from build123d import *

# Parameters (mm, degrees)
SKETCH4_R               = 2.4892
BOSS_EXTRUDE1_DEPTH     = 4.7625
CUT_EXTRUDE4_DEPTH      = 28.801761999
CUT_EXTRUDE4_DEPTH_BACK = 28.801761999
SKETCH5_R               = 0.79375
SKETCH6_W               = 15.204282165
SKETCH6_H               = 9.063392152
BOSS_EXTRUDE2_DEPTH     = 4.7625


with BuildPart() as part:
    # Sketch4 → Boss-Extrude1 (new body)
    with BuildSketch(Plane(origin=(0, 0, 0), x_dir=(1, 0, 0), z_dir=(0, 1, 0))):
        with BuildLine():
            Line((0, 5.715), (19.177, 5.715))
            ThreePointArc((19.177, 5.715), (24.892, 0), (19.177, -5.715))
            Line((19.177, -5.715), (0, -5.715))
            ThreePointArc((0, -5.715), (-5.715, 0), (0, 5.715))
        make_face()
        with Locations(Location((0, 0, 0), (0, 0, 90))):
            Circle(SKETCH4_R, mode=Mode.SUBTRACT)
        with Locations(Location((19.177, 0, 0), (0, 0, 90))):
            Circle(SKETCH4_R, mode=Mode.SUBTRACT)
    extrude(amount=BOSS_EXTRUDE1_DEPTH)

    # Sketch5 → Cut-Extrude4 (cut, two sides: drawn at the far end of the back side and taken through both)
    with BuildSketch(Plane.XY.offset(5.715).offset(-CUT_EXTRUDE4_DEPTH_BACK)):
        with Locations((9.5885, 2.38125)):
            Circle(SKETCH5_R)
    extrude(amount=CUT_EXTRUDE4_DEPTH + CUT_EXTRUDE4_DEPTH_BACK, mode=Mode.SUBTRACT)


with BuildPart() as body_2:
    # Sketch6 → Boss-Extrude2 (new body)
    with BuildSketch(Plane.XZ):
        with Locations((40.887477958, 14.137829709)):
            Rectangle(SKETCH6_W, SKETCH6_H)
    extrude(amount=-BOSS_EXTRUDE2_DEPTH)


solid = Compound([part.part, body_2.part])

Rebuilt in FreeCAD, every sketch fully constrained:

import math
import FreeCAD as App
import Part
import Sketcher
from FreeCAD import Vector
Q = App.Units.Quantity


def add_polygon(sketch, points):
    """Adds a closed chain of lines whose ends are joined by coincident constraints."""
    first, n = sketch.GeometryCount, len(points)
    for a, b in zip(points, points[1:] + points[:1]):
        sketch.addGeometry(Part.LineSegment(App.Vector(*a, 0), App.Vector(*b, 0)), False)
    for i in range(n):
        sketch.addConstraint(Sketcher.Constraint("Coincident", first + i, 2, first + (i + 1) % n, 1))

doc = App.newDocument("Part")
body = doc.addObject("PartDesign::Body", "Body")

# Sketch on XZ plane
sketch1 = doc.addObject("Sketcher::SketchObject", "Sketch")
body.addObject(sketch1)
sketch1.AttachmentSupport = (doc.XZ_Plane, [""])
sketch1.MapMode = "FlatFace"
sketch1.addGeometry([
    Part.LineSegment(Vector(19.2, -5.7, 0), Vector(0, -5.7, 0)),  # 0
    Part.ArcOfCircle(Part.Circle(Vector(0, 0, 0), Vector(0, 0, 1), 5.7), math.radians(90), math.radians(270)),  # 1
    Part.LineSegment(Vector(0, 5.7, 0), Vector(19.2, 5.7, 0)),  # 2
    Part.ArcOfCircle(Part.Circle(Vector(19.2, 0, 0), Vector(0, 0, 1), 5.7), math.radians(-90), math.radians(90)),  # 3
    Part.Circle(Vector(19.2, 0, 0), Vector(0, 0, 1), 2.5),  # 4
    Part.Circle(Vector(0, 0, 0), Vector(0, 0, 1), 2.5),  # 5
], False)
sketch1.addConstraint([
    Sketcher.Constraint("Tangent", 0, 2, 1, 2),
    Sketcher.Constraint("Tangent", 1, 1, 2, 1),
    Sketcher.Constraint("Tangent", 2, 2, 3, 2),
    Sketcher.Constraint("Tangent", 3, 1, 0, 1),
    Sketcher.Constraint("Horizontal", 0),
    Sketcher.Constraint("Horizontal", 2),
    Sketcher.Constraint("Coincident", 1, 3, -1, 1),
    Sketcher.Constraint("Coincident", 5, 3, -1, 1),
    Sketcher.Constraint("Coincident", 4, 3, 3, 3),
    Sketcher.Constraint("Equal", 4, 5),
    Sketcher.Constraint("Diameter", 4, Q("0.196 in")),
    Sketcher.Constraint("Radius", 1, Q("0.225 in")),
    Sketcher.Constraint("DistanceX", 0, 2, 0, 1, Q("0.755 in")),
])
pad1 = doc.addObject("PartDesign::Pad", "Pad")
body.addObject(pad1)
pad1.Profile = sketch1
pad1.Length = Q("0.1875 in")
pad1.Reversed = True

# Sketch on XY plane
sketch2 = doc.addObject("Sketcher::SketchObject", "Sketch001")
body.addObject(sketch2)
sketch2.AttachmentSupport = (doc.XY_Plane, [""])
sketch2.MapMode = "FlatFace"
sketch2.AttachmentOffset = App.Placement(Vector(0, 0, 0.225 * 25.4), App.Rotation())
sketch2.addGeometry(Part.Circle(Vector(9.6, 2.4, 0), Vector(0, 0, 1), 0.8), False)
sketch2.addConstraint([
    Sketcher.Constraint("Diameter", 0, Q("0.0625 in")),
    Sketcher.Constraint("DistanceY", -1, 1, 0, 3, Q("0.09375 in")),
    Sketcher.Constraint("DistanceX", -1, 1, 0, 3, Q("0.3775 in")),
])
pocket1 = doc.addObject("PartDesign::Pocket", "Pocket")
body.addObject(pocket1)
pocket1.Profile = sketch2
pocket1.Type = "ThroughAll"
pocket1.Midplane = True
body2 = doc.addObject("PartDesign::Body", "Body001")

# Sketch on XZ plane
sketch3 = doc.addObject("Sketcher::SketchObject", "Sketch002")
body2.addObject(sketch3)
sketch3.AttachmentSupport = (doc.getObject("XZ_Plane001"), [""])
sketch3.MapMode = "FlatFace"
add_polygon(sketch3, [(33, 19), (33, 10), (48, 10), (48, 19)])  # lines 0-3
sketch3.addConstraint([
    Sketcher.Constraint("Vertical", 0),
    Sketcher.Constraint("Horizontal", 1),
    Sketcher.Constraint("Vertical", 2),
    Sketcher.Constraint("Horizontal", 3),
    Sketcher.Constraint("DistanceX", 1, 1, 1, 2, 15.204282),
    Sketcher.Constraint("DistanceY", 0, 2, 0, 1, 9.063392),
    Sketcher.Constraint("DistanceX", -1, 1, 1, 2, 48.489619),
    Sketcher.Constraint("DistanceY", -1, 1, 0, 2, 9.606134),
])
pad2 = doc.addObject("PartDesign::Pad", "Pad001")
body2.addObject(pad2)
pad2.Profile = sketch3
pad2.Length = Q("0.1875 in")
pad2.Reversed = True

doc.recompute()
